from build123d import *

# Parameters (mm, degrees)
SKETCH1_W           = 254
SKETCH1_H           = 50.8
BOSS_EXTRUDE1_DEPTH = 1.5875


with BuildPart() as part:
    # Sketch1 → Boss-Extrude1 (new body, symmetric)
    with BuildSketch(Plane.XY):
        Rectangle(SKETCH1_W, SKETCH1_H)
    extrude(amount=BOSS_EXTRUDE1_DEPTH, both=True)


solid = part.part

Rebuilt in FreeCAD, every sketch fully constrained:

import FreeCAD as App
import Part
import Sketcher
Q = App.Units.Quantity


def add_polygon(sketch, points):
    """Adds a closed chain of lines whose ends are joined by coincident constraints."""
    first, n = sketch.GeometryCount, len(points)
    for a, b in zip(points, points[1:] + points[:1]):
        sketch.addGeometry(Part.LineSegment(App.Vector(*a, 0), App.Vector(*b, 0)), False)
    for i in range(n):
        sketch.addConstraint(Sketcher.Constraint("Coincident", first + i, 2, first + (i + 1) % n, 1))

doc = App.newDocument("Part")
params = doc.addObject("Spreadsheet::Sheet", "Params")
for row, (alias, value) in enumerate([
    ("sketch1_width", "10 in"),
    ("sketch1_height", "2 in"),
    ("pad1_length", "0.125 in"),
], start=1):
    params.set(f"A{row}", alias)
    params.set(f"B{row}", "=" + value)
    params.setAlias(f"B{row}", alias)

body = doc.addObject("PartDesign::Body", "Body")

# Sketch on XY plane
sketch1 = doc.addObject("Sketcher::SketchObject", "Sketch")
body.addObject(sketch1)
sketch1.AttachmentSupport = (doc.XY_Plane, [""])
sketch1.MapMode = "FlatFace"
add_polygon(sketch1, [(-127, 25), (-127, -25), (127, -25), (127, 25)])  # lines 0-3
sketch1.addConstraint([
    Sketcher.Constraint("Vertical", 0),
    Sketcher.Constraint("Horizontal", 1),
    Sketcher.Constraint("Vertical", 2),
    Sketcher.Constraint("Horizontal", 3),
    Sketcher.Constraint("Symmetric", 0, 2, 2, 2, -1, 1),
    Sketcher.Constraint("DistanceX", 1, 1, 1, 2, Q("10 in")),
    Sketcher.Constraint("DistanceY", 0, 2, 0, 1, Q("2 in")),
])
sketch1.setExpression("Constraints[9]", "Params.sketch1_width")
sketch1.setExpression("Constraints[10]", "Params.sketch1_height")
pad1 = doc.addObject("PartDesign::Pad", "Pad")
body.addObject(pad1)
pad1.Profile = sketch1
pad1.setExpression("Length", "Params.pad1_length")
pad1.Midplane = True

doc.recompute()
